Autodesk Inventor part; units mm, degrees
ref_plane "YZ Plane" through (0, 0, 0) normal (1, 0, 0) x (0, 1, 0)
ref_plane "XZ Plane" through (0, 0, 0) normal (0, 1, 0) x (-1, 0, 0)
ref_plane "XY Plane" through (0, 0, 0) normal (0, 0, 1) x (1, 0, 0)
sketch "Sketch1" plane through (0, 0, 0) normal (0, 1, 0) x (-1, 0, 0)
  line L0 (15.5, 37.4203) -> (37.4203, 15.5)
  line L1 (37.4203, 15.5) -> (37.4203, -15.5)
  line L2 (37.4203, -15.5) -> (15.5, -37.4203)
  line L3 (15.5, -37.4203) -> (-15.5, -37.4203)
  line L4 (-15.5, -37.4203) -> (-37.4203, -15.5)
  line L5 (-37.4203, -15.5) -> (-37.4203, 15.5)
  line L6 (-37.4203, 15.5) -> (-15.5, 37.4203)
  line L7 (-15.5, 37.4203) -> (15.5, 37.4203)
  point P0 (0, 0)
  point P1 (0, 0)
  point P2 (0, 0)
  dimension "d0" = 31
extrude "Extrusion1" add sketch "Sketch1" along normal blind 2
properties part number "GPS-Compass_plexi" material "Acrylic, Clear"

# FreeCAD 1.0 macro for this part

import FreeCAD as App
import Part
import Sketcher

V = App.Vector


def add_polygon(sketch, points):
    """Adds a closed chain of lines whose ends are joined by coincident constraints."""
    first, n = sketch.GeometryCount, len(points)
    for a, b in zip(points, points[1:] + points[:1]):
        sketch.addGeometry(Part.LineSegment(App.Vector(*a, 0), App.Vector(*b, 0)), False)
    for i in range(n):
        sketch.addConstraint(Sketcher.Constraint("Coincident", first + i, 2, first + (i + 1) % n, 1))

doc = App.newDocument("Part")
params = doc.addObject("Spreadsheet::Sheet", "Params")
for row, (alias, value) in enumerate([
    ("sketch1_width", "31 mm"),
    ("sketch1_length", "31 mm"),
    ("pad1_length", "2 mm"),
], start=1):
    params.set(f"A{row}", alias)
    params.set(f"B{row}", "=" + value)
    params.setAlias(f"B{row}", alias)

body = doc.addObject("PartDesign::Body", "Body")

sketch1 = body.newObject("Sketcher::SketchObject", "Sketch")
sketch1.AttachmentSupport = (doc.getObject("XZ_Plane"), [""])
sketch1.MapMode = "FlatFace"
add_polygon(sketch1, [(-37, 16), (-16, 37), (16, 37), (37, 16), (37, -16), (16, -37), (-16, -37), (-37, -16)])
sketch1.addConstraint([
    Sketcher.Constraint("Horizontal", 1),
    Sketcher.Constraint("Vertical", 3),
    Sketcher.Constraint("Horizontal", 5),
    Sketcher.Constraint("Vertical", 7),
    Sketcher.Constraint("Symmetric", 0, 2, 4, 2, -1, 1),
    Sketcher.Constraint("Symmetric", 2, 2, 6, 2, -1, 1),
    Sketcher.Constraint("Perpendicular", 0, 2),
    Sketcher.Constraint("Perpendicular", 2, 4),
    Sketcher.Constraint("Perpendicular", 4, 6),
    Sketcher.Constraint("Horizontal", 3, 2, 6, 2),
    Sketcher.Constraint("Vertical", 1, 2, 4, 2),
    Sketcher.Constraint("Equal", 5, 3),
    Sketcher.Constraint("DistanceX", 1, 1, 1, 2, 31.0),
    Sketcher.Constraint("Distance", 0, 31.0),
])
sketch1.setExpression("Constraints[20]", "Params.sketch1_width")
sketch1.setExpression("Constraints[21]", "Params.sketch1_length")
pad1 = body.newObject("PartDesign::Pad", "Pad")
pad1.Profile = sketch1
pad1.setExpression("Length", "Params.pad1_length")
pad1.Reversed = True

doc.recompute()
